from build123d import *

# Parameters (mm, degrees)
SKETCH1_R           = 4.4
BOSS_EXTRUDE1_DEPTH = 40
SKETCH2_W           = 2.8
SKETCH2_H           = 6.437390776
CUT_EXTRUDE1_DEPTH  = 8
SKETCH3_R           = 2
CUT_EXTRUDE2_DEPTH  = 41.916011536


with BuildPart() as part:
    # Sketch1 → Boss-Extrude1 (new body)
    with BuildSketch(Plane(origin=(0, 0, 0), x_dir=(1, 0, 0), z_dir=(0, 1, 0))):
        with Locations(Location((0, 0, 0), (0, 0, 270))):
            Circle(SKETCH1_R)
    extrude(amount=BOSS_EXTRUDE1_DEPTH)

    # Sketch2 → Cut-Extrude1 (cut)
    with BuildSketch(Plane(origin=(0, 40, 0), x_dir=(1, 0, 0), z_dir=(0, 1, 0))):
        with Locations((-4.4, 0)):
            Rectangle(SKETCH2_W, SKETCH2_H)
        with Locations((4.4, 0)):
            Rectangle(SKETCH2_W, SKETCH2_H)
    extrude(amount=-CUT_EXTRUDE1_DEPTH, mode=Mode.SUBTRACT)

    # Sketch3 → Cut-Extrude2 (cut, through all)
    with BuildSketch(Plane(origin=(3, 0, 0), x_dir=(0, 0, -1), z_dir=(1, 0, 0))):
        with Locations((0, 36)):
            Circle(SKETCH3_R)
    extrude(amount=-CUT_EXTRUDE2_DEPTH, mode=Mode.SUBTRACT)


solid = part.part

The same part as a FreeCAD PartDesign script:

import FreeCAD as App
import Part
import Sketcher

V = App.Vector
Q = App.Units.Quantity


def add_polygon(sketch, points):
    """Adds a closed chain of lines whose ends are joined by coincident constraints."""
    first, n = sketch.GeometryCount, len(points)
    for a, b in zip(points, points[1:] + points[:1]):
        sketch.addGeometry(Part.LineSegment(App.Vector(*a, 0), App.Vector(*b, 0)), False)
    for i in range(n):
        sketch.addConstraint(Sketcher.Constraint("Coincident", first + i, 2, first + (i + 1) % n, 1))

doc = App.newDocument("Part")
body = doc.addObject("PartDesign::Body", "Body")

# Sketch on XZ plane
sketch1 = body.newObject("Sketcher::SketchObject", "Sketch")
sketch1.AttachmentSupport = (doc.getObject("XZ_Plane"), [""])
sketch1.MapMode = "FlatFace"
sketch1.addGeometry(Part.Circle(V(0, 0, 0), V(0, 0, 1), 4.4), False)
sketch1.addConstraint([
    Sketcher.Constraint("Coincident", 0, 3, -1, 1),
    Sketcher.Constraint("Diameter", 0, Q("8.8 mm")),
])
pad1 = body.newObject("PartDesign::Pad", "Pad")
pad1.Profile = sketch1
pad1.Length = 40
pad1.Reversed = True

# Sketch on XZ plane
sketch2 = body.newObject("Sketcher::SketchObject", "Sketch001")
sketch2.AttachmentSupport = (doc.getObject("XZ_Plane"), [""])
sketch2.MapMode = "FlatFace"
sketch2.AttachmentOffset = App.Placement(V(0, 0, -40), App.Rotation())
add_polygon(sketch2, [(-5.8, -3.2), (-5.8, 3.2), (-3, 3.2), (-3, -3.2)])  # lines 0-3
add_polygon(sketch2, [(3, -3.2), (3, 3.2), (5.8, 3.2), (5.8, -3.2)])  # lines 4-7
sketch2.addConstraint([
    Sketcher.Constraint("Vertical", 0),
    Sketcher.Constraint("Horizontal", 1),
    Sketcher.Constraint("Vertical", 2),
    Sketcher.Constraint("Horizontal", 3),
    Sketcher.Constraint("Vertical", 4),
    Sketcher.Constraint("Horizontal", 5),
    Sketcher.Constraint("Vertical", 6),
    Sketcher.Constraint("Horizontal", 7),
    Sketcher.Constraint("Symmetric", 2, 2, 4, 2, -1, 1),
    Sketcher.Constraint("Symmetric", 0, 2, 6, 2, -1, 1),
    Sketcher.Constraint("Horizontal", 1, 2, 4, 2),
    Sketcher.Constraint("DistanceX", 1, 1, 1, 2, Q("2.8 mm")),
    Sketcher.Constraint("DistanceX", 1, 2, -1, 1, Q("3 mm")),
    Sketcher.Constraint("DistanceY", 0, 1, 0, 2, Q("6.437391 mm")),
])
pocket1 = body.newObject("PartDesign::Pocket", "Pocket")
pocket1.Profile = sketch2
pocket1.Length = 8
pocket1.Reversed = True

# Sketch on YZ plane
sketch3 = body.newObject("Sketcher::SketchObject", "Sketch002")
sketch3.AttachmentSupport = (doc.getObject("YZ_Plane"), [""])
sketch3.MapMode = "FlatFace"
sketch3.AttachmentOffset = App.Placement(V(0, 0, 3), App.Rotation())
sketch3.addGeometry(Part.Circle(V(36, 0, 0), V(0, 0, 1), 2), False)
sketch3.addConstraint([
    Sketcher.Constraint("PointOnObject", 0, 3, -1),
    Sketcher.Constraint("Diameter", 0, Q("4 mm")),
    Sketcher.Constraint("DistanceX", -1, 1, 0, 3, Q("36 mm")),
])
pocket2 = body.newObject("PartDesign::Pocket", "Pocket001")
pocket2.Profile = sketch3
pocket2.Type = "ThroughAll"

doc.recompute()
